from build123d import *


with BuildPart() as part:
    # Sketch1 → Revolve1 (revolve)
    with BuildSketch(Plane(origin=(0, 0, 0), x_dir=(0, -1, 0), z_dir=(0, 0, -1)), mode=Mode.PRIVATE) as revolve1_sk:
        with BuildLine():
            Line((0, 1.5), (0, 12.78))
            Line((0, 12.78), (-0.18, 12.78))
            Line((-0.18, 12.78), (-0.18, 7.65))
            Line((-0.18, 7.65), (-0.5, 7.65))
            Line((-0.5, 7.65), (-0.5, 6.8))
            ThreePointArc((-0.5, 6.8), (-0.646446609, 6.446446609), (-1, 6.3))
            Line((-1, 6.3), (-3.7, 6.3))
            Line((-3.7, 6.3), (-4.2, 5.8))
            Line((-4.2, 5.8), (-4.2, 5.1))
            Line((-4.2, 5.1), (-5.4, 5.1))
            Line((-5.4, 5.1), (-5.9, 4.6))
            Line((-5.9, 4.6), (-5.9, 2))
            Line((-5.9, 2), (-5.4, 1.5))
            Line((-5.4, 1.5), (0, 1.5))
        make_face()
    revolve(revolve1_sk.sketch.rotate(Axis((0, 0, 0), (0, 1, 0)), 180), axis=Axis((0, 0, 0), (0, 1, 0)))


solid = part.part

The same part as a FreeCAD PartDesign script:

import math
import FreeCAD as App
import Part
import Sketcher

doc = App.newDocument("Part")
body = doc.addObject("PartDesign::Body", "Body")

# Sketch on XY plane
sketch1 = body.newObject("Sketcher::SketchObject", "Sketch")
sketch1.AttachmentSupport = (doc.getObject("XY_Plane"), [""])
sketch1.MapMode = "FlatFace"
sketch1.addGeometry(Part.LineSegment(App.Vector(-1.5, 0, 0), App.Vector(-12.78, 0, 0)), False)
sketch1.addGeometry(Part.LineSegment(App.Vector(-12.78, 0, 0), App.Vector(-12.78, 0.18, 0)), False)
sketch1.addGeometry(Part.LineSegment(App.Vector(-12.78, 0.18, 0), App.Vector(-7.65, 0.18, 0)), False)
sketch1.addGeometry(Part.LineSegment(App.Vector(-7.65, 0.18, 0), App.Vector(-7.65, 0.5, 0)), False)
sketch1.addGeometry(Part.LineSegment(App.Vector(-7.65, 0.5, 0), App.Vector(-6.8, 0.5, 0)), False)
sketch1.addGeometry(Part.ArcOfCircle(Part.Circle(App.Vector(-6.8, 1, 0), App.Vector(0, 0, 1), 0.5), math.radians(-90), math.radians(0)), False)
sketch1.addGeometry(Part.LineSegment(App.Vector(-6.3, 1, 0), App.Vector(-6.3, 3.7, 0)), False)
sketch1.addGeometry(Part.LineSegment(App.Vector(-6.3, 3.7, 0), App.Vector(-5.8, 4.2, 0)), False)
sketch1.addGeometry(Part.LineSegment(App.Vector(-5.8, 4.2, 0), App.Vector(-5.1, 4.2, 0)), False)
sketch1.addGeometry(Part.LineSegment(App.Vector(-5.1, 4.2, 0), App.Vector(-5.1, 5.4, 0)), False)
sketch1.addGeometry(Part.LineSegment(App.Vector(-5.1, 5.4, 0), App.Vector(-4.6, 5.9, 0)), False)
sketch1.addGeometry(Part.LineSegment(App.Vector(-4.6, 5.9, 0), App.Vector(-2, 5.9, 0)), False)
sketch1.addGeometry(Part.LineSegment(App.Vector(-2, 5.9, 0), App.Vector(-1.5, 5.4, 0)), False)
sketch1.addGeometry(Part.LineSegment(App.Vector(-1.5, 5.4, 0), App.Vector(-1.5, 0, 0)), False)
sketch1.addConstraint(Sketcher.Constraint("Coincident", 0, 2, 1, 1))
sketch1.addConstraint(Sketcher.Constraint("Coincident", 1, 2, 2, 1))
sketch1.addConstraint(Sketcher.Constraint("Coincident", 2, 2, 3, 1))
sketch1.addConstraint(Sketcher.Constraint("Coincident", 3, 2, 4, 1))
sketch1.addConstraint(Sketcher.Constraint("Tangent", 4, 2, 5, 1))
sketch1.addConstraint(Sketcher.Constraint("Tangent", 5, 2, 6, 1))
sketch1.addConstraint(Sketcher.Constraint("Coincident", 6, 2, 7, 1))
sketch1.addConstraint(Sketcher.Constraint("Coincident", 7, 2, 8, 1))
sketch1.addConstraint(Sketcher.Constraint("Coincident", 8, 2, 9, 1))
sketch1.addConstraint(Sketcher.Constraint("Coincident", 9, 2, 10, 1))
sketch1.addConstraint(Sketcher.Constraint("Coincident", 10, 2, 11, 1))
sketch1.addConstraint(Sketcher.Constraint("Coincident", 11, 2, 12, 1))
sketch1.addConstraint(Sketcher.Constraint("Coincident", 12, 2, 13, 1))
sketch1.addConstraint(Sketcher.Constraint("Coincident", 13, 2, 0, 1))
sketch1.addConstraint(Sketcher.Constraint("Horizontal", 0))
sketch1.addConstraint(Sketcher.Constraint("Vertical", 1))
sketch1.addConstraint(Sketcher.Constraint("Horizontal", 2))
sketch1.addConstraint(Sketcher.Constraint("Vertical", 3))
sketch1.addConstraint(Sketcher.Constraint("Horizontal", 4))
sketch1.addConstraint(Sketcher.Constraint("Vertical", 6))
sketch1.addConstraint(Sketcher.Constraint("Horizontal", 8))
sketch1.addConstraint(Sketcher.Constraint("Vertical", 9))
sketch1.addConstraint(Sketcher.Constraint("Horizontal", 11))
sketch1.addConstraint(Sketcher.Constraint("Vertical", 13))
sketch1.addConstraint(Sketcher.Constraint("PointOnObject", 0, 2, -1))
sketch1.addConstraint(Sketcher.Constraint("Parallel", 7, 10))
sketch1.addConstraint(Sketcher.Constraint("Perpendicular", 10, 12))
sketch1.addConstraint(Sketcher.Constraint("Horizontal", 9, 2, 12, 2))
sketch1.addConstraint(Sketcher.Constraint("Equal", 7, 10))
sketch1.addConstraint(Sketcher.Constraint("Equal", 10, 12))
sketch1.addConstraint(Sketcher.Constraint("Radius", 5, 0.5))
sketch1.addConstraint(Sketcher.Constraint("DistanceX", 8, 1, 8, 2, 0.7))
sketch1.addConstraint(Sketcher.Constraint("DistanceX", 11, 1, 11, 2, 2.6))
sketch1.addConstraint(Sketcher.Constraint("DistanceY", 6, 1, 6, 2, 2.7))
sketch1.addConstraint(Sketcher.Constraint("DistanceY", 9, 1, 9, 2, 1.2))
sketch1.addConstraint(Sketcher.Constraint("DistanceY", 13, 2, 13, 1, 5.4))
sketch1.addConstraint(Sketcher.Constraint("DistanceY", -1, 1, 5, 3, 1.0))
sketch1.addConstraint(Sketcher.Constraint("DistanceX", 11, 2, -1, 1, 2.0))
sketch1.addConstraint(Sketcher.Constraint("DistanceX", 0, 2, 0, 1, 11.28))
sketch1.addConstraint(Sketcher.Constraint("DistanceX", 2, 1, 2, 2, 5.13))
sketch1.addConstraint(Sketcher.Constraint("DistanceY", 1, 1, 1, 2, 0.18))
revolution = body.newObject("PartDesign::Revolution", "Revolution")
revolution.Profile = sketch1
revolution.ReferenceAxis = (sketch1, ["V_Axis"])
revolution.Angle = 360

doc.recompute()
